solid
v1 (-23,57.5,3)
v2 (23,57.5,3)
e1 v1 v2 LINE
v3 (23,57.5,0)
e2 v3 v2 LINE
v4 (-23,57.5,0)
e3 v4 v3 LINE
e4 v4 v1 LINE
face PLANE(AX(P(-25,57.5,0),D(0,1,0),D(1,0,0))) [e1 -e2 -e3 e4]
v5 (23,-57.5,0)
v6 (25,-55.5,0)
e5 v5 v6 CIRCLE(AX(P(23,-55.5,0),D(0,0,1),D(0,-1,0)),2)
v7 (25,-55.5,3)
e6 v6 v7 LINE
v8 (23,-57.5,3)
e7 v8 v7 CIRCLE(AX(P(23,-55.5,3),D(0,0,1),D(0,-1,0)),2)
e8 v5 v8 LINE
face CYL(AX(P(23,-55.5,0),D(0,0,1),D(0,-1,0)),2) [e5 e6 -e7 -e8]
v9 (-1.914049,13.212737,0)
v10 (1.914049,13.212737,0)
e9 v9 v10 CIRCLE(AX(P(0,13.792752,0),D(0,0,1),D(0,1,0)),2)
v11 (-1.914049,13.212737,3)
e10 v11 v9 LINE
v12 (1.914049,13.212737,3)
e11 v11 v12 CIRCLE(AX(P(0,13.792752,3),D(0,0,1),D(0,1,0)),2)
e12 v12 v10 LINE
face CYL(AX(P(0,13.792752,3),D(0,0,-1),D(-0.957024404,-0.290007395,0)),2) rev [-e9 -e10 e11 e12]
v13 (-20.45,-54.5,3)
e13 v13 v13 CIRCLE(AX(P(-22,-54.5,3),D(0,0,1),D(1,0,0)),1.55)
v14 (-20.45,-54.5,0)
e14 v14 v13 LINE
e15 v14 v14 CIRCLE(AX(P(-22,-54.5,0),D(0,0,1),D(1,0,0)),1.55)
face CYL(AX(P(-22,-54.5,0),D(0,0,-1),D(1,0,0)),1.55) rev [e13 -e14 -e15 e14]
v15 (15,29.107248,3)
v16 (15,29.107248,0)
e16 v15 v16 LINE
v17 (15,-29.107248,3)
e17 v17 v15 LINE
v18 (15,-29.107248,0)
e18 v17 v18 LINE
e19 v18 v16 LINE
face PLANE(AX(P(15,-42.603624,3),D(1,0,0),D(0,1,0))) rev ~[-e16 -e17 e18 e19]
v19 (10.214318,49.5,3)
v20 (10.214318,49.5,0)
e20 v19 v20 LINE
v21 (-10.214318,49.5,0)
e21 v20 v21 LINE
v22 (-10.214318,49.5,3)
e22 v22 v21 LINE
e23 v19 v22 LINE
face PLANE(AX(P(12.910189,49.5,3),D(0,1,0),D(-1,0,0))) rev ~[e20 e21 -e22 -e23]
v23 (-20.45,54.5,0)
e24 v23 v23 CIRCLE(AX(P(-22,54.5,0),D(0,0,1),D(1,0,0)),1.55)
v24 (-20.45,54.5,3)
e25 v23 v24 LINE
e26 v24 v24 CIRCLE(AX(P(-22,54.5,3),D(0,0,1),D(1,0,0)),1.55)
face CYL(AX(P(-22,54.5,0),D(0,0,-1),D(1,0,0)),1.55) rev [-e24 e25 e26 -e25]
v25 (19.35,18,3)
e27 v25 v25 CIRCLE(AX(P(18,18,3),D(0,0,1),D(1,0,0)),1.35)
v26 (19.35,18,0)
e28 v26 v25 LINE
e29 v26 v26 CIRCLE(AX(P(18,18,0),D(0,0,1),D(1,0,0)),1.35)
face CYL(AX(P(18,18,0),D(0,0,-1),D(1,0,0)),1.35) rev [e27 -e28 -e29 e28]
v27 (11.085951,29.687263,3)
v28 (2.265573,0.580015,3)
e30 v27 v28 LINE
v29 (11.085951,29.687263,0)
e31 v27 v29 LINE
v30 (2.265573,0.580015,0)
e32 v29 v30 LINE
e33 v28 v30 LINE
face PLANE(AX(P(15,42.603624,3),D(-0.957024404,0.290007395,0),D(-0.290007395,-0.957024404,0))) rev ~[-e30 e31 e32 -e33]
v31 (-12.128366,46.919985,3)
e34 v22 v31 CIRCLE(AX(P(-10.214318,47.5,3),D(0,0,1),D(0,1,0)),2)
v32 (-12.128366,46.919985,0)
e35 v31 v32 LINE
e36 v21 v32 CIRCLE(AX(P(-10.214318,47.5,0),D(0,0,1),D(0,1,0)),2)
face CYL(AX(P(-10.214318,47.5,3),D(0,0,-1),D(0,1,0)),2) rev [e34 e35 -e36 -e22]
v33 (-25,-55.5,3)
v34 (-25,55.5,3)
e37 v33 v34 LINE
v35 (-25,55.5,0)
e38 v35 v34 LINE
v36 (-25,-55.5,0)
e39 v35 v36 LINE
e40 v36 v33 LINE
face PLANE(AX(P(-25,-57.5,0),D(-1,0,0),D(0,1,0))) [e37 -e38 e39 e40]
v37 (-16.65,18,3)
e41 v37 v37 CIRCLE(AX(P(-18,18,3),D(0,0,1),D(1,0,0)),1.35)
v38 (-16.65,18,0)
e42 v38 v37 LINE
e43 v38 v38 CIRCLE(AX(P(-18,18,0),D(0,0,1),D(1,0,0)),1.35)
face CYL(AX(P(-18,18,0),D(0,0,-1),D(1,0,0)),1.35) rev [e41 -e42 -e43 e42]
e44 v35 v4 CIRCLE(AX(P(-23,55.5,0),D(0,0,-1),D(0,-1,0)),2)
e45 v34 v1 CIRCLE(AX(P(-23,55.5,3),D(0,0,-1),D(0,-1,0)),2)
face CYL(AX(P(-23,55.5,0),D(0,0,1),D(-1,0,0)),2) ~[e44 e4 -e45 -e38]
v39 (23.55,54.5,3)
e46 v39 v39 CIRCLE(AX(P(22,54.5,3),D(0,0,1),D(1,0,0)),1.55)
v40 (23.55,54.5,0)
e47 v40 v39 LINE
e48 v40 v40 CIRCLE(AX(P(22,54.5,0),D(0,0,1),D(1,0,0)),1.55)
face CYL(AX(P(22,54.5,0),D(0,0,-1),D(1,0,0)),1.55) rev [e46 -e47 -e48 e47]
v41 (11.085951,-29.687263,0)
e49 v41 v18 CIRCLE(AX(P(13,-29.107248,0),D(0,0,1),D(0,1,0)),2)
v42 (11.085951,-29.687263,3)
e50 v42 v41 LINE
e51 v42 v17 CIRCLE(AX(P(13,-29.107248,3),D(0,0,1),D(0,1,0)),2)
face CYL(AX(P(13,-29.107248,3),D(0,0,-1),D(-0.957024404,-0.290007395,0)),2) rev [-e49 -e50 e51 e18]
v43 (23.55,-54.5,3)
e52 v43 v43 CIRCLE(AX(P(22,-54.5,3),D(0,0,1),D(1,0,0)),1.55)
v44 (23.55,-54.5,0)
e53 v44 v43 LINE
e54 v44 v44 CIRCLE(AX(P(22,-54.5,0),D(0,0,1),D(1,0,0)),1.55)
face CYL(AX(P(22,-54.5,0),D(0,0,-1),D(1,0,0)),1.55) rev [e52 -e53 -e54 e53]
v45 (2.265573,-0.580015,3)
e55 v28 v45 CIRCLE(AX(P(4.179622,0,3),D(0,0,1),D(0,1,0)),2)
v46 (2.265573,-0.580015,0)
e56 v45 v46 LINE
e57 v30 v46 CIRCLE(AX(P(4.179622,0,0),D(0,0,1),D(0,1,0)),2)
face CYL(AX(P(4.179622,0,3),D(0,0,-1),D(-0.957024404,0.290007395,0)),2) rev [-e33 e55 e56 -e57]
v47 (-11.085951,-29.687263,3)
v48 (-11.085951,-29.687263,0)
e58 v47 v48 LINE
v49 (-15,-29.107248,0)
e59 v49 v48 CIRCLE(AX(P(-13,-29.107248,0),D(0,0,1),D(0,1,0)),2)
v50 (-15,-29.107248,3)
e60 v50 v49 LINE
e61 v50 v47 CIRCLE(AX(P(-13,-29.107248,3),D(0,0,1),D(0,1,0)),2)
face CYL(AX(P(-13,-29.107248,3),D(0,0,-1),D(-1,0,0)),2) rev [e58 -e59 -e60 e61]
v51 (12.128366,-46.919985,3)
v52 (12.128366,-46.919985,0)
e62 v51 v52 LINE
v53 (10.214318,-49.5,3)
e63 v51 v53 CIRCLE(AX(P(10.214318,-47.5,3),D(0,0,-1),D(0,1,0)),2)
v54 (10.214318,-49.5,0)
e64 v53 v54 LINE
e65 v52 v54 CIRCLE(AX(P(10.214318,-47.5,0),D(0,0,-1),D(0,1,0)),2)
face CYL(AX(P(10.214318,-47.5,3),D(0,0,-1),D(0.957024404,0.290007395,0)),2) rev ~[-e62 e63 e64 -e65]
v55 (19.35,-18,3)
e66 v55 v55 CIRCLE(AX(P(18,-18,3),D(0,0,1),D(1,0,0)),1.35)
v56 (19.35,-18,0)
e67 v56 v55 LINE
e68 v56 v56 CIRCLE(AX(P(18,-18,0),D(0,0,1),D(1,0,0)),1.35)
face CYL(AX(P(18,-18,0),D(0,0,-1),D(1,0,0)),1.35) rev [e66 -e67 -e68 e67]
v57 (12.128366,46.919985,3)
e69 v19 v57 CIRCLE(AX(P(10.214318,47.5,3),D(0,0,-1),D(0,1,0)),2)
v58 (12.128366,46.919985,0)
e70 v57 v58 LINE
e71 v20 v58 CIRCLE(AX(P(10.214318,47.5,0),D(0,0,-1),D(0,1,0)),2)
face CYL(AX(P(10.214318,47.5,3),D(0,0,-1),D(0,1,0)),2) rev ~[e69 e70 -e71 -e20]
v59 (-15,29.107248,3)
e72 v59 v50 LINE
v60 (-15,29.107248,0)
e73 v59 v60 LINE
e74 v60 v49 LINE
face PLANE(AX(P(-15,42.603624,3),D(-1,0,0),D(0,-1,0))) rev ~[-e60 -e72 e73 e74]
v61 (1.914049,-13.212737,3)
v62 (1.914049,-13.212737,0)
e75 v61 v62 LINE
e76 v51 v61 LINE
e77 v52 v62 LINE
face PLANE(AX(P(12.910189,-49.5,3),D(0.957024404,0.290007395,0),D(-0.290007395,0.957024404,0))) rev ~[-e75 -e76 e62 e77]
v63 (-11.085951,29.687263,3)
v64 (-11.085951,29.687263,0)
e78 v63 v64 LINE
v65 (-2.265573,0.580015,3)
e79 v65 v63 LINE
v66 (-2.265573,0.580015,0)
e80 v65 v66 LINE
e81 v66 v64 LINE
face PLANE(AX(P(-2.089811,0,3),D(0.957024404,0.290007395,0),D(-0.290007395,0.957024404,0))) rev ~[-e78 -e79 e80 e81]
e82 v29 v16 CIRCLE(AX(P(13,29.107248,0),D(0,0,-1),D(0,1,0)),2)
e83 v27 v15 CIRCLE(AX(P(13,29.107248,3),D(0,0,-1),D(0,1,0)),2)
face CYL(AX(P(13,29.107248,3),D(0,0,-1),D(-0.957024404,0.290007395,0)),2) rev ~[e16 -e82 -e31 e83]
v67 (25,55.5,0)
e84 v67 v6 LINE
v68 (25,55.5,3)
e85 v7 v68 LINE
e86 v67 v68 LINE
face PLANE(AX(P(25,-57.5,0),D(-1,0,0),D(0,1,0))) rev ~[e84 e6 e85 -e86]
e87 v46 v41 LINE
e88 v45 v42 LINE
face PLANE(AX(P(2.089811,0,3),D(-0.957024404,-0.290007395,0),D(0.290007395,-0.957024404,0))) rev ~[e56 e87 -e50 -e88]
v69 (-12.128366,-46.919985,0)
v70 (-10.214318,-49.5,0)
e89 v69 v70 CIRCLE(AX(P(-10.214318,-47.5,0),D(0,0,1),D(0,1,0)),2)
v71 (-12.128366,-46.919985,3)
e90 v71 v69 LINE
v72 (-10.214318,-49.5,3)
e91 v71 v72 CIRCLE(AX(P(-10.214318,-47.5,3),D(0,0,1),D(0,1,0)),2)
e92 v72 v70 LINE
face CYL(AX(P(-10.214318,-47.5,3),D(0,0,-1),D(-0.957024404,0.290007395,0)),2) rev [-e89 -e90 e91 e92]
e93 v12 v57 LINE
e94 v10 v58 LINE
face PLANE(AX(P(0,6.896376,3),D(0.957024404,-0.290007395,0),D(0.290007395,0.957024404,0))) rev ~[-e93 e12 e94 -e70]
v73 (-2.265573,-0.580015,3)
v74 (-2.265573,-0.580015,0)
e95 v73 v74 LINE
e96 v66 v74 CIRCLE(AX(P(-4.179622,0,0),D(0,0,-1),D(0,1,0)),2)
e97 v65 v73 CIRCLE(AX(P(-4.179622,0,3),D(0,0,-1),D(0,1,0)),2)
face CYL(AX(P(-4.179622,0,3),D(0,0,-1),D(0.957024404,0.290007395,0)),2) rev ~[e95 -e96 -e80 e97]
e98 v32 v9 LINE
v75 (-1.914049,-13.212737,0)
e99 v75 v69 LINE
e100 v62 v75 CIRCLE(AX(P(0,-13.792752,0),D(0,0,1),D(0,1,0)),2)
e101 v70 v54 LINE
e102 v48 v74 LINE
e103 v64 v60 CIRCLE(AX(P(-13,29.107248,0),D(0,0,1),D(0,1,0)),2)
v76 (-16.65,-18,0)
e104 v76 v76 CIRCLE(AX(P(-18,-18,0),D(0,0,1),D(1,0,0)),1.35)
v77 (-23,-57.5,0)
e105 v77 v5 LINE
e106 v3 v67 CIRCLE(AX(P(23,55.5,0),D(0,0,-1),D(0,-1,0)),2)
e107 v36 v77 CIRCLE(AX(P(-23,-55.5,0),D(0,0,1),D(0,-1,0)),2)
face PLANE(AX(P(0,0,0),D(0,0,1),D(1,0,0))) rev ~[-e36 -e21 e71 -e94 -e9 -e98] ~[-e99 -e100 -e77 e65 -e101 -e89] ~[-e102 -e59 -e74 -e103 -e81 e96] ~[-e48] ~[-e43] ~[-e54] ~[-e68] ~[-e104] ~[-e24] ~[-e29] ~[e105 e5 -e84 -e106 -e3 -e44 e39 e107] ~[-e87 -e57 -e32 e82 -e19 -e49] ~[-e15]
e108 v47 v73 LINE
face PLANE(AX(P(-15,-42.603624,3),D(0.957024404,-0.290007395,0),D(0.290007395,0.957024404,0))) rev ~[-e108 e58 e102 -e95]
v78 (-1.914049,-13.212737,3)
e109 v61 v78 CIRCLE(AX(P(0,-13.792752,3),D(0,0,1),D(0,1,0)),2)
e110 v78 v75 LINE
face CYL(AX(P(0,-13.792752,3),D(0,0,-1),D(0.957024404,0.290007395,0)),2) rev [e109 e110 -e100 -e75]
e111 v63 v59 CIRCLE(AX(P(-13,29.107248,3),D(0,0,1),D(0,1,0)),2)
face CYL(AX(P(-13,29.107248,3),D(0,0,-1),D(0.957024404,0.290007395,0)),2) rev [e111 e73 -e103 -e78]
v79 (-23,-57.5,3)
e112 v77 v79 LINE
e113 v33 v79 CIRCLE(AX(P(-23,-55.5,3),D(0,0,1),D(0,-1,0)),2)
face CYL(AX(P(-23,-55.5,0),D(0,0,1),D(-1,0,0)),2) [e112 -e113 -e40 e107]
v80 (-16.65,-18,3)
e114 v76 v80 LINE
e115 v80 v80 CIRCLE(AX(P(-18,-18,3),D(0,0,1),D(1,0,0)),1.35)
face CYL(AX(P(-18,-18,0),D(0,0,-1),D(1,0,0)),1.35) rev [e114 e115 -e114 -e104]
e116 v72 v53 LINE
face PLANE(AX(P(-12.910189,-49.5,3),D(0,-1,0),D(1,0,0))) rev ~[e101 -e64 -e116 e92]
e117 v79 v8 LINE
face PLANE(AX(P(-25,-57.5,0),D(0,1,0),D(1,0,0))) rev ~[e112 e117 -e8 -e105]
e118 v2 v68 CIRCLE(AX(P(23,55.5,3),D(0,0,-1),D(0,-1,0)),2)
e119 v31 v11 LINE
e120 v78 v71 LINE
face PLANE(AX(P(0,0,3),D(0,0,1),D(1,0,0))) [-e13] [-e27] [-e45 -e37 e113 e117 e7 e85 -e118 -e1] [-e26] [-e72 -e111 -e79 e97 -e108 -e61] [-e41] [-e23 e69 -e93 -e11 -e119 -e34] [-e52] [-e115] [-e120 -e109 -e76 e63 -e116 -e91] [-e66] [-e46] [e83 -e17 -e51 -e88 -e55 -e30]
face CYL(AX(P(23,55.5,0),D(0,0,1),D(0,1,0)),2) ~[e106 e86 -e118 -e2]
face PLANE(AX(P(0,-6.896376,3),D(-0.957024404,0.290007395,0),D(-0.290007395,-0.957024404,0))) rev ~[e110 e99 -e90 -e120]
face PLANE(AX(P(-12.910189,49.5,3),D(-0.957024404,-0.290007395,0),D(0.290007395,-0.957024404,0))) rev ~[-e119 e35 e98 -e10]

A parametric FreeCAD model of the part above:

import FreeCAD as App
import Part
import Sketcher
Q = App.Units.Quantity


def edges_at(feature, points):
    """Names of the edges that pass closest to the given points."""
    edges = feature.Shape.Edges
    near = lambda p: min(range(len(edges)), key=lambda i: edges[i].distToShape(Part.Vertex(*p))[0])
    return sorted({f"Edge{near(p) + 1}" for p in points})


def add_polygon(sketch, points):
    """Adds a closed chain of lines whose ends are joined by coincident constraints."""
    first, n = sketch.GeometryCount, len(points)
    for a, b in zip(points, points[1:] + points[:1]):
        sketch.addGeometry(Part.LineSegment(App.Vector(*a, 0), App.Vector(*b, 0)), False)
    for i in range(n):
        sketch.addConstraint(Sketcher.Constraint("Coincident", first + i, 2, first + (i + 1) % n, 1))

doc = App.newDocument("Part")
body = doc.addObject("PartDesign::Body", "Body")

# Sketch on XY plane
sketch1 = doc.addObject("Sketcher::SketchObject", "Sketch")
body.addObject(sketch1)
sketch1.AttachmentSupport = (doc.XY_Plane, [""])
sketch1.MapMode = "FlatFace"
add_polygon(sketch1, [(-25, 25), (-25, -25), (25, -25), (25, 25)])  # lines 0-3
sketch1.addGeometry(Part.Circle(App.Vector(-18, -18, 0), App.Vector(0, 0, 1), 1.4), False)  # 4
sketch1.addGeometry(Part.Circle(App.Vector(18, -18, 0), App.Vector(0, 0, 1), 1.4), False)  # 5
sketch1.addGeometry(Part.Circle(App.Vector(-18, 18, 0), App.Vector(0, 0, 1), 1.4), False)  # 6
sketch1.addGeometry(Part.Circle(App.Vector(18, 18, 0), App.Vector(0, 0, 1), 1.4), False)  # 7
sketch1.addConstraint([
    Sketcher.Constraint("Vertical", 0),
    Sketcher.Constraint("Horizontal", 1),
    Sketcher.Constraint("Vertical", 2),
    Sketcher.Constraint("Horizontal", 3),
    Sketcher.Constraint("Equal", 4, 5),
    Sketcher.Constraint("Equal", 5, 6),
    Sketcher.Constraint("Equal", 6, 7),
    Sketcher.Constraint("Symmetric", 5, 3, 6, 3, -1, 1),
    Sketcher.Constraint("Symmetric", 4, 3, 7, 3, -1, 1),
    Sketcher.Constraint("Symmetric", 0, 2, 2, 2, -1, 1),
    Sketcher.Constraint("Symmetric", 4, 3, 5, 3, -2),
    Sketcher.Constraint("Equal", 3, 0),
    Sketcher.Constraint("Diameter", 4, Q("2.7 mm")),
    Sketcher.Constraint("DistanceX", 1, 1, 1, 2, Q("50 mm")),
    Sketcher.Constraint("DistanceX", 4, 3, -1, 1, Q("18 mm")),
    Sketcher.Constraint("DistanceY", 4, 3, -1, 1, Q("18 mm")),
])
pad1 = doc.addObject("PartDesign::Pad", "Pad")
body.addObject(pad1)
pad1.Profile = sketch1
pad1.Length = 3

# Sketch on XY plane
sketch2 = doc.addObject("Sketcher::SketchObject", "Sketch001")
body.addObject(sketch2)
sketch2.AttachmentSupport = (doc.XY_Plane, [""])
sketch2.MapMode = "FlatFace"
add_polygon(sketch2, [(-25, 57.5), (-25, -57.5), (25, -57.5), (25, 57.5)])  # lines 0-3
sketch2.addGeometry(Part.Circle(App.Vector(-22, -54.5, 0), App.Vector(0, 0, 1), 1.6), False)  # 4
sketch2.addGeometry(Part.Circle(App.Vector(-18, -18, 0), App.Vector(0, 0, 1), 1.4), False)  # 5
sketch2.addGeometry(Part.Circle(App.Vector(22, -54.5, 0), App.Vector(0, 0, 1), 1.6), False)  # 6
sketch2.addGeometry(Part.Circle(App.Vector(18, -18, 0), App.Vector(0, 0, 1), 1.4), False)  # 7
sketch2.addGeometry(Part.Circle(App.Vector(-18, 18, 0), App.Vector(0, 0, 1), 1.4), False)  # 8
sketch2.addGeometry(Part.Circle(App.Vector(-22, 54.5, 0), App.Vector(0, 0, 1), 1.6), False)  # 9
sketch2.addGeometry(Part.Circle(App.Vector(18, 18, 0), App.Vector(0, 0, 1), 1.4), False)  # 10
sketch2.addGeometry(Part.Circle(App.Vector(22, 54.5, 0), App.Vector(0, 0, 1), 1.6), False)  # 11
sketch2.addConstraint([
    Sketcher.Constraint("Vertical", 0),
    Sketcher.Constraint("Horizontal", 1),
    Sketcher.Constraint("Vertical", 2),
    Sketcher.Constraint("Horizontal", 3),
    Sketcher.Constraint("Equal", 4, 6),
    Sketcher.Constraint("Equal", 5, 7),
    Sketcher.Constraint("Equal", 7, 8),
    Sketcher.Constraint("Equal", 6, 9),
    Sketcher.Constraint("Equal", 8, 10),
    Sketcher.Constraint("Equal", 9, 11),
    Sketcher.Constraint("Symmetric", 7, 3, 8, 3, -1, 1),
    Sketcher.Constraint("Symmetric", 6, 3, 9, 3, -1, 1),
    Sketcher.Constraint("Symmetric", 5, 3, 10, 3, -1, 1),
    Sketcher.Constraint("Symmetric", 4, 3, 11, 3, -1, 1),
    Sketcher.Constraint("Symmetric", 0, 2, 2, 2, -1, 1),
    Sketcher.Constraint("Symmetric", 4, 3, 6, 3, -2),
    Sketcher.Constraint("Symmetric", 5, 3, 7, 3, -2),
    Sketcher.Constraint("Diameter", 4, Q("3.1 mm")),
    Sketcher.Constraint("Diameter", 5, Q("2.7 mm")),
    Sketcher.Constraint("DistanceX", 1, 1, 1, 2, Q("50 mm")),
    Sketcher.Constraint("DistanceY", 0, 2, 0, 1, Q("115 mm")),
    Sketcher.Constraint("DistanceX", 4, 3, -1, 1, Q("22 mm")),
    Sketcher.Constraint("DistanceX", 5, 3, -1, 1, Q("18 mm")),
    Sketcher.Constraint("DistanceY", 5, 3, -1, 1, Q("18 mm")),
    Sketcher.Constraint("DistanceY", 4, 3, 9, 3, Q("109 mm")),
])
pad2 = doc.addObject("PartDesign::Pad", "Pad001")
body.addObject(pad2)
pad2.Profile = sketch2
pad2.Length = 3

# Sketch on XY plane
sketch3 = doc.addObject("Sketcher::SketchObject", "Sketch002")
body.addObject(sketch3)
sketch3.AttachmentSupport = (doc.XY_Plane, [""])
sketch3.MapMode = "FlatFace"
sketch3.AttachmentOffset = App.Placement(App.Vector(0, 0, 3), App.Rotation())
add_polygon(sketch3, [(13, -50), (0, -7), (-13, -50)])  # lines 0-2
add_polygon(sketch3, [(15, 43), (2, 0), (15, -43)])  # lines 3-5
add_polygon(sketch3, [(13, 50), (-13, 50), (0, 7)])  # lines 6-8
add_polygon(sketch3, [(-2, 0), (-15, 43), (-15, -43)])  # lines 9-11
sketch3.addConstraint([
    Sketcher.Constraint("Horizontal", 2),
    Sketcher.Constraint("Vertical", 5),
    Sketcher.Constraint("Horizontal", 6),
    Sketcher.Constraint("Vertical", 10),
    Sketcher.Constraint("Symmetric", 2, 2, 6, 2, -1, 1),
    Sketcher.Constraint("Symmetric", 0, 2, 7, 2, -1, 1),
    Sketcher.Constraint("Symmetric", 4, 2, 9, 2, -1, 1),
    Sketcher.Constraint("Symmetric", 3, 2, 11, 2, -1, 1),
    Sketcher.Constraint("PointOnObject", 0, 2, -2),
    Sketcher.Constraint("PointOnObject", 3, 2, -1),
    Sketcher.Constraint("Parallel", 1, 3),
    Sketcher.Constraint("Parallel", 0, 4),
    Sketcher.Constraint("Parallel", 3, 8),
    Sketcher.Constraint("Parallel", 8, 11),
    Sketcher.Constraint("Horizontal", 5, 2, 9, 2),
    Sketcher.Constraint("Equal", 1, 3),
    Sketcher.Constraint("DistanceX", -1, 1, 4, 2, Q("15 mm")),
    Sketcher.Constraint("DistanceY", 1, 2, 6, 2, Q("99 mm")),
    Sketcher.Constraint("DistanceX", 2, 1, 2, 2, Q("25.820378 mm")),
    Sketcher.Constraint("DistanceY", 5, 1, 5, 2, Q("85.207248 mm")),
])
pocket1 = doc.addObject("PartDesign::Pocket", "Pocket")
body.addObject(pocket1)
pocket1.Profile = sketch3
pocket1.Type = "ThroughAll"
doc.recompute()

fillet = doc.addObject("PartDesign::Fillet", "Fillet")
body.addObject(fillet)
fillet.Base = (pocket1, edges_at(pocket1, [
    (25, 57.5, 1.5),
    (-25, -57.5, 1.5),
    (25, -57.5, 1.5),
    (-25, 57.5, 1.5),
    (0, 6.896, 1.5),
    (-12.91, 49.5, 1.5),
    (12.91, 49.5, 1.5),
    (2.09, 0, 1.5),
    (15, 42.604, 1.5),
    (15, -42.604, 1.5),
    (-15, -42.604, 1.5),
    (-15, 42.604, 1.5),
    (-2.09, 0, 1.5),
    (-12.91, -49.5, 1.5),
    (0, -6.896, 1.5),
    (12.91, -49.5, 1.5),
]))
fillet.Radius = 2

doc.recompute()
